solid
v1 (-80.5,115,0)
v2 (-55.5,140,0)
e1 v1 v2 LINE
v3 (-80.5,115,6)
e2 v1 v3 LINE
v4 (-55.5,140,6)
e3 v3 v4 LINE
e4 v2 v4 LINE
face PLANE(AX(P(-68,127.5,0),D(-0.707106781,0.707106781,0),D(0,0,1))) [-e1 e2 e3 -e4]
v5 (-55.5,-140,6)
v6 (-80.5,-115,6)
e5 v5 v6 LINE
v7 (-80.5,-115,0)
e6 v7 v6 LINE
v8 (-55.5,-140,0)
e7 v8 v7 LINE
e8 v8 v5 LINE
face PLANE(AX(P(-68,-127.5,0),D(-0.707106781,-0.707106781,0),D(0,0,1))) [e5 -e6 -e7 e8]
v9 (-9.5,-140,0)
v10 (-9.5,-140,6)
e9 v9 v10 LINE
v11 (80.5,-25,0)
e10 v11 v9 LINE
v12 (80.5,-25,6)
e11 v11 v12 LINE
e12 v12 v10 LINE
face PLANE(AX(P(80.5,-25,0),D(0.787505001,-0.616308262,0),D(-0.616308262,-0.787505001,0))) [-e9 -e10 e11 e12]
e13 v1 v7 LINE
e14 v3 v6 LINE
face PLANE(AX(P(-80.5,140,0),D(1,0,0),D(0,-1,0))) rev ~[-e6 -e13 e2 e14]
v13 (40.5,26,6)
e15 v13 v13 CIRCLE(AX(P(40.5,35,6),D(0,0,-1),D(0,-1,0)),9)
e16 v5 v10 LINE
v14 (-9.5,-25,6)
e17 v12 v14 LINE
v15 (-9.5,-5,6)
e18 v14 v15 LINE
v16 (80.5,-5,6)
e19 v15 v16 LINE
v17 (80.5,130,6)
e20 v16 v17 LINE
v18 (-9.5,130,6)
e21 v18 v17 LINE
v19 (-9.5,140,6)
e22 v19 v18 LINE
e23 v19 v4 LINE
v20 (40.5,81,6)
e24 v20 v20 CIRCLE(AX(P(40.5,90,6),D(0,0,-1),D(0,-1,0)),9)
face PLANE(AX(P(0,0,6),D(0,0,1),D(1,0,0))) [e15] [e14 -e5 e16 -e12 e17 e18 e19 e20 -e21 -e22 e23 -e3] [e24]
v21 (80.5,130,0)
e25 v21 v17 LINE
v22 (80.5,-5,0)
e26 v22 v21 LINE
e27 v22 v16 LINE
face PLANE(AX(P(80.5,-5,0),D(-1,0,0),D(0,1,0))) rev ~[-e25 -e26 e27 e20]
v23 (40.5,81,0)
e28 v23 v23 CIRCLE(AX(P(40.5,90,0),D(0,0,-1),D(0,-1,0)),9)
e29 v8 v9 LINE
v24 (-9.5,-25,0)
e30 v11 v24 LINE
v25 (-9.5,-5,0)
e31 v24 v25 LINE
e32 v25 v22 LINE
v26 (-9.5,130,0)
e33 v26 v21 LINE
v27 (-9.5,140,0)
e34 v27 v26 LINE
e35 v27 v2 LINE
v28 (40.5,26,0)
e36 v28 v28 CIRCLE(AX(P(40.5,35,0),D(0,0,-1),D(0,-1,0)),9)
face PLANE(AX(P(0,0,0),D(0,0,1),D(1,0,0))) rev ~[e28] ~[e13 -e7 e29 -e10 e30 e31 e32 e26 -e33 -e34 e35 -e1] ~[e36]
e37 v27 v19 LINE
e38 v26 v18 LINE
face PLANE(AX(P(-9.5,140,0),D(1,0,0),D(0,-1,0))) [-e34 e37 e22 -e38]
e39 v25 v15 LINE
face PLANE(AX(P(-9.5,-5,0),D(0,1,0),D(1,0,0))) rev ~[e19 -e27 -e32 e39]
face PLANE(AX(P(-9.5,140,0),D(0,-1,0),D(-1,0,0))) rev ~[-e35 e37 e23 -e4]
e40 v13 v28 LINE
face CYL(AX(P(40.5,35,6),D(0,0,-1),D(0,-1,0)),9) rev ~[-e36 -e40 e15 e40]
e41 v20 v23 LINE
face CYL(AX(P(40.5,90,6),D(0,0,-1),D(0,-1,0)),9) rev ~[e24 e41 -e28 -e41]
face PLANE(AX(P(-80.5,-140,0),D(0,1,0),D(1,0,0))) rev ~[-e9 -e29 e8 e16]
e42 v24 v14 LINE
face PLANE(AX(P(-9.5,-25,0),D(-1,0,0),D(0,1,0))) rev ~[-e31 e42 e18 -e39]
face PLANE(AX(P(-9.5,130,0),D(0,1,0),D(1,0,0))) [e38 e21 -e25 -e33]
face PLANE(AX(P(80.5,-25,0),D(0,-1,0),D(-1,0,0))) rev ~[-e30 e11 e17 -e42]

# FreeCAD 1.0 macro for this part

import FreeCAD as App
import Part
import Sketcher

V = App.Vector


def edges_at(feature, points):
    """Names of the edges that pass closest to the given points."""
    edges = feature.Shape.Edges
    near = lambda p: min(range(len(edges)), key=lambda i: edges[i].distToShape(Part.Vertex(*p))[0])
    return sorted({f"Edge{near(p) + 1}" for p in points})


def add_polygon(sketch, points):
    """Adds a closed chain of lines whose ends are joined by coincident constraints."""
    first, n = sketch.GeometryCount, len(points)
    for a, b in zip(points, points[1:] + points[:1]):
        sketch.addGeometry(Part.LineSegment(App.Vector(*a, 0), App.Vector(*b, 0)), False)
    for i in range(n):
        sketch.addConstraint(Sketcher.Constraint("Coincident", first + i, 2, first + (i + 1) % n, 1))

doc = App.newDocument("Part")
body = doc.addObject("PartDesign::Body", "Body")

# Sketch on XY plane
sketch1 = doc.addObject("Sketcher::SketchObject", "Sketch")
body.addObject(sketch1)
sketch1.AttachmentSupport = (doc.XY_Plane, [""])
sketch1.MapMode = "FlatFace"
add_polygon(sketch1, [(-9.5, 130), (-9.5, 140), (-80.5, 140), (-80.5, -140), (-9.5, -140), (80.5, -25), (-9.5, -25), (-9.5, -5), (80.5, -5), (80.5, 130)])  # lines 0-9
sketch1.addConstraint(Sketcher.Constraint("Vertical", 0))
sketch1.addConstraint(Sketcher.Constraint("Horizontal", 1))
sketch1.addConstraint(Sketcher.Constraint("Vertical", 2))
sketch1.addConstraint(Sketcher.Constraint("Horizontal", 3))
sketch1.addConstraint(Sketcher.Constraint("Horizontal", 5))
sketch1.addConstraint(Sketcher.Constraint("Vertical", 6))
sketch1.addConstraint(Sketcher.Constraint("Horizontal", 7))
sketch1.addConstraint(Sketcher.Constraint("Vertical", 8))
sketch1.addConstraint(Sketcher.Constraint("Horizontal", 9))
sketch1.addConstraint(Sketcher.Constraint("Symmetric", 0, 2, 3, 2, -1))
sketch1.addConstraint(Sketcher.Constraint("Vertical", 3, 2, 5, 2))
sketch1.addConstraint(Sketcher.Constraint("Vertical", 4, 2, 7, 2))
sketch1.addConstraint(Sketcher.Constraint("DistanceX", 1, 2, 1, 1, 71.0))
sketch1.addConstraint(Sketcher.Constraint("DistanceX", 5, 2, 5, 1, 90.0))
sketch1.addConstraint(Sketcher.Constraint("DistanceY", 2, 2, 2, 1, 280.0))
sketch1.addConstraint(Sketcher.Constraint("DistanceY", 6, 1, 6, 2, 20.0))
sketch1.addConstraint(Sketcher.Constraint("DistanceY", 0, 1, 0, 2, 10.0))
sketch1.addConstraint(Sketcher.Constraint("DistanceY", 8, 1, 8, 2, 135.0))
sketch1.addConstraint(Sketcher.Constraint("DistanceX", 0, 2, -1, 1, 9.5))
pad1 = doc.addObject("PartDesign::Pad", "Pad")
body.addObject(pad1)
pad1.Profile = sketch1
pad1.Length = 6
doc.recompute()

chamfer = doc.addObject("PartDesign::Chamfer", "Chamfer")
body.addObject(chamfer)
chamfer.Base = (pad1, edges_at(pad1, [(-80.5, -140, 3), (-80.5, 140, 3)]))
chamfer.Size = 25

# Sketch on XY plane
sketch2 = doc.addObject("Sketcher::SketchObject", "Sketch001")
body.addObject(sketch2)
sketch2.AttachmentSupport = (doc.XY_Plane, [""])
sketch2.MapMode = "FlatFace"
sketch2.AttachmentOffset = App.Placement(V(0, 0, 6), App.Rotation())
sketch2.addGeometry(Part.Circle(V(40.5, 90, 0), V(0, 0, 1), 9), False)
sketch2.addGeometry(Part.Circle(V(40.5, 35, 0), V(0, 0, 1), 9), False)
sketch2.addConstraint(Sketcher.Constraint("Equal", 0, 1))
sketch2.addConstraint(Sketcher.Constraint("Vertical", 0, 3, 1, 3))
sketch2.addConstraint(Sketcher.Constraint("Diameter", 0, 18.0))
sketch2.addConstraint(Sketcher.Constraint("DistanceY", -1, 1, 0, 3, 90.0))
sketch2.addConstraint(Sketcher.Constraint("DistanceY", -1, 1, 1, 3, 35.0))
sketch2.addConstraint(Sketcher.Constraint("DistanceX", -1, 1, 0, 3, 40.5))
doc.recompute()
hole = doc.addObject("PartDesign::Hole", "Hole")
body.addObject(hole)
hole.Profile = sketch2
hole.ThreadType = "None"
hole.Diameter = 18
hole.DepthType = "ThroughAll"

doc.recompute()
